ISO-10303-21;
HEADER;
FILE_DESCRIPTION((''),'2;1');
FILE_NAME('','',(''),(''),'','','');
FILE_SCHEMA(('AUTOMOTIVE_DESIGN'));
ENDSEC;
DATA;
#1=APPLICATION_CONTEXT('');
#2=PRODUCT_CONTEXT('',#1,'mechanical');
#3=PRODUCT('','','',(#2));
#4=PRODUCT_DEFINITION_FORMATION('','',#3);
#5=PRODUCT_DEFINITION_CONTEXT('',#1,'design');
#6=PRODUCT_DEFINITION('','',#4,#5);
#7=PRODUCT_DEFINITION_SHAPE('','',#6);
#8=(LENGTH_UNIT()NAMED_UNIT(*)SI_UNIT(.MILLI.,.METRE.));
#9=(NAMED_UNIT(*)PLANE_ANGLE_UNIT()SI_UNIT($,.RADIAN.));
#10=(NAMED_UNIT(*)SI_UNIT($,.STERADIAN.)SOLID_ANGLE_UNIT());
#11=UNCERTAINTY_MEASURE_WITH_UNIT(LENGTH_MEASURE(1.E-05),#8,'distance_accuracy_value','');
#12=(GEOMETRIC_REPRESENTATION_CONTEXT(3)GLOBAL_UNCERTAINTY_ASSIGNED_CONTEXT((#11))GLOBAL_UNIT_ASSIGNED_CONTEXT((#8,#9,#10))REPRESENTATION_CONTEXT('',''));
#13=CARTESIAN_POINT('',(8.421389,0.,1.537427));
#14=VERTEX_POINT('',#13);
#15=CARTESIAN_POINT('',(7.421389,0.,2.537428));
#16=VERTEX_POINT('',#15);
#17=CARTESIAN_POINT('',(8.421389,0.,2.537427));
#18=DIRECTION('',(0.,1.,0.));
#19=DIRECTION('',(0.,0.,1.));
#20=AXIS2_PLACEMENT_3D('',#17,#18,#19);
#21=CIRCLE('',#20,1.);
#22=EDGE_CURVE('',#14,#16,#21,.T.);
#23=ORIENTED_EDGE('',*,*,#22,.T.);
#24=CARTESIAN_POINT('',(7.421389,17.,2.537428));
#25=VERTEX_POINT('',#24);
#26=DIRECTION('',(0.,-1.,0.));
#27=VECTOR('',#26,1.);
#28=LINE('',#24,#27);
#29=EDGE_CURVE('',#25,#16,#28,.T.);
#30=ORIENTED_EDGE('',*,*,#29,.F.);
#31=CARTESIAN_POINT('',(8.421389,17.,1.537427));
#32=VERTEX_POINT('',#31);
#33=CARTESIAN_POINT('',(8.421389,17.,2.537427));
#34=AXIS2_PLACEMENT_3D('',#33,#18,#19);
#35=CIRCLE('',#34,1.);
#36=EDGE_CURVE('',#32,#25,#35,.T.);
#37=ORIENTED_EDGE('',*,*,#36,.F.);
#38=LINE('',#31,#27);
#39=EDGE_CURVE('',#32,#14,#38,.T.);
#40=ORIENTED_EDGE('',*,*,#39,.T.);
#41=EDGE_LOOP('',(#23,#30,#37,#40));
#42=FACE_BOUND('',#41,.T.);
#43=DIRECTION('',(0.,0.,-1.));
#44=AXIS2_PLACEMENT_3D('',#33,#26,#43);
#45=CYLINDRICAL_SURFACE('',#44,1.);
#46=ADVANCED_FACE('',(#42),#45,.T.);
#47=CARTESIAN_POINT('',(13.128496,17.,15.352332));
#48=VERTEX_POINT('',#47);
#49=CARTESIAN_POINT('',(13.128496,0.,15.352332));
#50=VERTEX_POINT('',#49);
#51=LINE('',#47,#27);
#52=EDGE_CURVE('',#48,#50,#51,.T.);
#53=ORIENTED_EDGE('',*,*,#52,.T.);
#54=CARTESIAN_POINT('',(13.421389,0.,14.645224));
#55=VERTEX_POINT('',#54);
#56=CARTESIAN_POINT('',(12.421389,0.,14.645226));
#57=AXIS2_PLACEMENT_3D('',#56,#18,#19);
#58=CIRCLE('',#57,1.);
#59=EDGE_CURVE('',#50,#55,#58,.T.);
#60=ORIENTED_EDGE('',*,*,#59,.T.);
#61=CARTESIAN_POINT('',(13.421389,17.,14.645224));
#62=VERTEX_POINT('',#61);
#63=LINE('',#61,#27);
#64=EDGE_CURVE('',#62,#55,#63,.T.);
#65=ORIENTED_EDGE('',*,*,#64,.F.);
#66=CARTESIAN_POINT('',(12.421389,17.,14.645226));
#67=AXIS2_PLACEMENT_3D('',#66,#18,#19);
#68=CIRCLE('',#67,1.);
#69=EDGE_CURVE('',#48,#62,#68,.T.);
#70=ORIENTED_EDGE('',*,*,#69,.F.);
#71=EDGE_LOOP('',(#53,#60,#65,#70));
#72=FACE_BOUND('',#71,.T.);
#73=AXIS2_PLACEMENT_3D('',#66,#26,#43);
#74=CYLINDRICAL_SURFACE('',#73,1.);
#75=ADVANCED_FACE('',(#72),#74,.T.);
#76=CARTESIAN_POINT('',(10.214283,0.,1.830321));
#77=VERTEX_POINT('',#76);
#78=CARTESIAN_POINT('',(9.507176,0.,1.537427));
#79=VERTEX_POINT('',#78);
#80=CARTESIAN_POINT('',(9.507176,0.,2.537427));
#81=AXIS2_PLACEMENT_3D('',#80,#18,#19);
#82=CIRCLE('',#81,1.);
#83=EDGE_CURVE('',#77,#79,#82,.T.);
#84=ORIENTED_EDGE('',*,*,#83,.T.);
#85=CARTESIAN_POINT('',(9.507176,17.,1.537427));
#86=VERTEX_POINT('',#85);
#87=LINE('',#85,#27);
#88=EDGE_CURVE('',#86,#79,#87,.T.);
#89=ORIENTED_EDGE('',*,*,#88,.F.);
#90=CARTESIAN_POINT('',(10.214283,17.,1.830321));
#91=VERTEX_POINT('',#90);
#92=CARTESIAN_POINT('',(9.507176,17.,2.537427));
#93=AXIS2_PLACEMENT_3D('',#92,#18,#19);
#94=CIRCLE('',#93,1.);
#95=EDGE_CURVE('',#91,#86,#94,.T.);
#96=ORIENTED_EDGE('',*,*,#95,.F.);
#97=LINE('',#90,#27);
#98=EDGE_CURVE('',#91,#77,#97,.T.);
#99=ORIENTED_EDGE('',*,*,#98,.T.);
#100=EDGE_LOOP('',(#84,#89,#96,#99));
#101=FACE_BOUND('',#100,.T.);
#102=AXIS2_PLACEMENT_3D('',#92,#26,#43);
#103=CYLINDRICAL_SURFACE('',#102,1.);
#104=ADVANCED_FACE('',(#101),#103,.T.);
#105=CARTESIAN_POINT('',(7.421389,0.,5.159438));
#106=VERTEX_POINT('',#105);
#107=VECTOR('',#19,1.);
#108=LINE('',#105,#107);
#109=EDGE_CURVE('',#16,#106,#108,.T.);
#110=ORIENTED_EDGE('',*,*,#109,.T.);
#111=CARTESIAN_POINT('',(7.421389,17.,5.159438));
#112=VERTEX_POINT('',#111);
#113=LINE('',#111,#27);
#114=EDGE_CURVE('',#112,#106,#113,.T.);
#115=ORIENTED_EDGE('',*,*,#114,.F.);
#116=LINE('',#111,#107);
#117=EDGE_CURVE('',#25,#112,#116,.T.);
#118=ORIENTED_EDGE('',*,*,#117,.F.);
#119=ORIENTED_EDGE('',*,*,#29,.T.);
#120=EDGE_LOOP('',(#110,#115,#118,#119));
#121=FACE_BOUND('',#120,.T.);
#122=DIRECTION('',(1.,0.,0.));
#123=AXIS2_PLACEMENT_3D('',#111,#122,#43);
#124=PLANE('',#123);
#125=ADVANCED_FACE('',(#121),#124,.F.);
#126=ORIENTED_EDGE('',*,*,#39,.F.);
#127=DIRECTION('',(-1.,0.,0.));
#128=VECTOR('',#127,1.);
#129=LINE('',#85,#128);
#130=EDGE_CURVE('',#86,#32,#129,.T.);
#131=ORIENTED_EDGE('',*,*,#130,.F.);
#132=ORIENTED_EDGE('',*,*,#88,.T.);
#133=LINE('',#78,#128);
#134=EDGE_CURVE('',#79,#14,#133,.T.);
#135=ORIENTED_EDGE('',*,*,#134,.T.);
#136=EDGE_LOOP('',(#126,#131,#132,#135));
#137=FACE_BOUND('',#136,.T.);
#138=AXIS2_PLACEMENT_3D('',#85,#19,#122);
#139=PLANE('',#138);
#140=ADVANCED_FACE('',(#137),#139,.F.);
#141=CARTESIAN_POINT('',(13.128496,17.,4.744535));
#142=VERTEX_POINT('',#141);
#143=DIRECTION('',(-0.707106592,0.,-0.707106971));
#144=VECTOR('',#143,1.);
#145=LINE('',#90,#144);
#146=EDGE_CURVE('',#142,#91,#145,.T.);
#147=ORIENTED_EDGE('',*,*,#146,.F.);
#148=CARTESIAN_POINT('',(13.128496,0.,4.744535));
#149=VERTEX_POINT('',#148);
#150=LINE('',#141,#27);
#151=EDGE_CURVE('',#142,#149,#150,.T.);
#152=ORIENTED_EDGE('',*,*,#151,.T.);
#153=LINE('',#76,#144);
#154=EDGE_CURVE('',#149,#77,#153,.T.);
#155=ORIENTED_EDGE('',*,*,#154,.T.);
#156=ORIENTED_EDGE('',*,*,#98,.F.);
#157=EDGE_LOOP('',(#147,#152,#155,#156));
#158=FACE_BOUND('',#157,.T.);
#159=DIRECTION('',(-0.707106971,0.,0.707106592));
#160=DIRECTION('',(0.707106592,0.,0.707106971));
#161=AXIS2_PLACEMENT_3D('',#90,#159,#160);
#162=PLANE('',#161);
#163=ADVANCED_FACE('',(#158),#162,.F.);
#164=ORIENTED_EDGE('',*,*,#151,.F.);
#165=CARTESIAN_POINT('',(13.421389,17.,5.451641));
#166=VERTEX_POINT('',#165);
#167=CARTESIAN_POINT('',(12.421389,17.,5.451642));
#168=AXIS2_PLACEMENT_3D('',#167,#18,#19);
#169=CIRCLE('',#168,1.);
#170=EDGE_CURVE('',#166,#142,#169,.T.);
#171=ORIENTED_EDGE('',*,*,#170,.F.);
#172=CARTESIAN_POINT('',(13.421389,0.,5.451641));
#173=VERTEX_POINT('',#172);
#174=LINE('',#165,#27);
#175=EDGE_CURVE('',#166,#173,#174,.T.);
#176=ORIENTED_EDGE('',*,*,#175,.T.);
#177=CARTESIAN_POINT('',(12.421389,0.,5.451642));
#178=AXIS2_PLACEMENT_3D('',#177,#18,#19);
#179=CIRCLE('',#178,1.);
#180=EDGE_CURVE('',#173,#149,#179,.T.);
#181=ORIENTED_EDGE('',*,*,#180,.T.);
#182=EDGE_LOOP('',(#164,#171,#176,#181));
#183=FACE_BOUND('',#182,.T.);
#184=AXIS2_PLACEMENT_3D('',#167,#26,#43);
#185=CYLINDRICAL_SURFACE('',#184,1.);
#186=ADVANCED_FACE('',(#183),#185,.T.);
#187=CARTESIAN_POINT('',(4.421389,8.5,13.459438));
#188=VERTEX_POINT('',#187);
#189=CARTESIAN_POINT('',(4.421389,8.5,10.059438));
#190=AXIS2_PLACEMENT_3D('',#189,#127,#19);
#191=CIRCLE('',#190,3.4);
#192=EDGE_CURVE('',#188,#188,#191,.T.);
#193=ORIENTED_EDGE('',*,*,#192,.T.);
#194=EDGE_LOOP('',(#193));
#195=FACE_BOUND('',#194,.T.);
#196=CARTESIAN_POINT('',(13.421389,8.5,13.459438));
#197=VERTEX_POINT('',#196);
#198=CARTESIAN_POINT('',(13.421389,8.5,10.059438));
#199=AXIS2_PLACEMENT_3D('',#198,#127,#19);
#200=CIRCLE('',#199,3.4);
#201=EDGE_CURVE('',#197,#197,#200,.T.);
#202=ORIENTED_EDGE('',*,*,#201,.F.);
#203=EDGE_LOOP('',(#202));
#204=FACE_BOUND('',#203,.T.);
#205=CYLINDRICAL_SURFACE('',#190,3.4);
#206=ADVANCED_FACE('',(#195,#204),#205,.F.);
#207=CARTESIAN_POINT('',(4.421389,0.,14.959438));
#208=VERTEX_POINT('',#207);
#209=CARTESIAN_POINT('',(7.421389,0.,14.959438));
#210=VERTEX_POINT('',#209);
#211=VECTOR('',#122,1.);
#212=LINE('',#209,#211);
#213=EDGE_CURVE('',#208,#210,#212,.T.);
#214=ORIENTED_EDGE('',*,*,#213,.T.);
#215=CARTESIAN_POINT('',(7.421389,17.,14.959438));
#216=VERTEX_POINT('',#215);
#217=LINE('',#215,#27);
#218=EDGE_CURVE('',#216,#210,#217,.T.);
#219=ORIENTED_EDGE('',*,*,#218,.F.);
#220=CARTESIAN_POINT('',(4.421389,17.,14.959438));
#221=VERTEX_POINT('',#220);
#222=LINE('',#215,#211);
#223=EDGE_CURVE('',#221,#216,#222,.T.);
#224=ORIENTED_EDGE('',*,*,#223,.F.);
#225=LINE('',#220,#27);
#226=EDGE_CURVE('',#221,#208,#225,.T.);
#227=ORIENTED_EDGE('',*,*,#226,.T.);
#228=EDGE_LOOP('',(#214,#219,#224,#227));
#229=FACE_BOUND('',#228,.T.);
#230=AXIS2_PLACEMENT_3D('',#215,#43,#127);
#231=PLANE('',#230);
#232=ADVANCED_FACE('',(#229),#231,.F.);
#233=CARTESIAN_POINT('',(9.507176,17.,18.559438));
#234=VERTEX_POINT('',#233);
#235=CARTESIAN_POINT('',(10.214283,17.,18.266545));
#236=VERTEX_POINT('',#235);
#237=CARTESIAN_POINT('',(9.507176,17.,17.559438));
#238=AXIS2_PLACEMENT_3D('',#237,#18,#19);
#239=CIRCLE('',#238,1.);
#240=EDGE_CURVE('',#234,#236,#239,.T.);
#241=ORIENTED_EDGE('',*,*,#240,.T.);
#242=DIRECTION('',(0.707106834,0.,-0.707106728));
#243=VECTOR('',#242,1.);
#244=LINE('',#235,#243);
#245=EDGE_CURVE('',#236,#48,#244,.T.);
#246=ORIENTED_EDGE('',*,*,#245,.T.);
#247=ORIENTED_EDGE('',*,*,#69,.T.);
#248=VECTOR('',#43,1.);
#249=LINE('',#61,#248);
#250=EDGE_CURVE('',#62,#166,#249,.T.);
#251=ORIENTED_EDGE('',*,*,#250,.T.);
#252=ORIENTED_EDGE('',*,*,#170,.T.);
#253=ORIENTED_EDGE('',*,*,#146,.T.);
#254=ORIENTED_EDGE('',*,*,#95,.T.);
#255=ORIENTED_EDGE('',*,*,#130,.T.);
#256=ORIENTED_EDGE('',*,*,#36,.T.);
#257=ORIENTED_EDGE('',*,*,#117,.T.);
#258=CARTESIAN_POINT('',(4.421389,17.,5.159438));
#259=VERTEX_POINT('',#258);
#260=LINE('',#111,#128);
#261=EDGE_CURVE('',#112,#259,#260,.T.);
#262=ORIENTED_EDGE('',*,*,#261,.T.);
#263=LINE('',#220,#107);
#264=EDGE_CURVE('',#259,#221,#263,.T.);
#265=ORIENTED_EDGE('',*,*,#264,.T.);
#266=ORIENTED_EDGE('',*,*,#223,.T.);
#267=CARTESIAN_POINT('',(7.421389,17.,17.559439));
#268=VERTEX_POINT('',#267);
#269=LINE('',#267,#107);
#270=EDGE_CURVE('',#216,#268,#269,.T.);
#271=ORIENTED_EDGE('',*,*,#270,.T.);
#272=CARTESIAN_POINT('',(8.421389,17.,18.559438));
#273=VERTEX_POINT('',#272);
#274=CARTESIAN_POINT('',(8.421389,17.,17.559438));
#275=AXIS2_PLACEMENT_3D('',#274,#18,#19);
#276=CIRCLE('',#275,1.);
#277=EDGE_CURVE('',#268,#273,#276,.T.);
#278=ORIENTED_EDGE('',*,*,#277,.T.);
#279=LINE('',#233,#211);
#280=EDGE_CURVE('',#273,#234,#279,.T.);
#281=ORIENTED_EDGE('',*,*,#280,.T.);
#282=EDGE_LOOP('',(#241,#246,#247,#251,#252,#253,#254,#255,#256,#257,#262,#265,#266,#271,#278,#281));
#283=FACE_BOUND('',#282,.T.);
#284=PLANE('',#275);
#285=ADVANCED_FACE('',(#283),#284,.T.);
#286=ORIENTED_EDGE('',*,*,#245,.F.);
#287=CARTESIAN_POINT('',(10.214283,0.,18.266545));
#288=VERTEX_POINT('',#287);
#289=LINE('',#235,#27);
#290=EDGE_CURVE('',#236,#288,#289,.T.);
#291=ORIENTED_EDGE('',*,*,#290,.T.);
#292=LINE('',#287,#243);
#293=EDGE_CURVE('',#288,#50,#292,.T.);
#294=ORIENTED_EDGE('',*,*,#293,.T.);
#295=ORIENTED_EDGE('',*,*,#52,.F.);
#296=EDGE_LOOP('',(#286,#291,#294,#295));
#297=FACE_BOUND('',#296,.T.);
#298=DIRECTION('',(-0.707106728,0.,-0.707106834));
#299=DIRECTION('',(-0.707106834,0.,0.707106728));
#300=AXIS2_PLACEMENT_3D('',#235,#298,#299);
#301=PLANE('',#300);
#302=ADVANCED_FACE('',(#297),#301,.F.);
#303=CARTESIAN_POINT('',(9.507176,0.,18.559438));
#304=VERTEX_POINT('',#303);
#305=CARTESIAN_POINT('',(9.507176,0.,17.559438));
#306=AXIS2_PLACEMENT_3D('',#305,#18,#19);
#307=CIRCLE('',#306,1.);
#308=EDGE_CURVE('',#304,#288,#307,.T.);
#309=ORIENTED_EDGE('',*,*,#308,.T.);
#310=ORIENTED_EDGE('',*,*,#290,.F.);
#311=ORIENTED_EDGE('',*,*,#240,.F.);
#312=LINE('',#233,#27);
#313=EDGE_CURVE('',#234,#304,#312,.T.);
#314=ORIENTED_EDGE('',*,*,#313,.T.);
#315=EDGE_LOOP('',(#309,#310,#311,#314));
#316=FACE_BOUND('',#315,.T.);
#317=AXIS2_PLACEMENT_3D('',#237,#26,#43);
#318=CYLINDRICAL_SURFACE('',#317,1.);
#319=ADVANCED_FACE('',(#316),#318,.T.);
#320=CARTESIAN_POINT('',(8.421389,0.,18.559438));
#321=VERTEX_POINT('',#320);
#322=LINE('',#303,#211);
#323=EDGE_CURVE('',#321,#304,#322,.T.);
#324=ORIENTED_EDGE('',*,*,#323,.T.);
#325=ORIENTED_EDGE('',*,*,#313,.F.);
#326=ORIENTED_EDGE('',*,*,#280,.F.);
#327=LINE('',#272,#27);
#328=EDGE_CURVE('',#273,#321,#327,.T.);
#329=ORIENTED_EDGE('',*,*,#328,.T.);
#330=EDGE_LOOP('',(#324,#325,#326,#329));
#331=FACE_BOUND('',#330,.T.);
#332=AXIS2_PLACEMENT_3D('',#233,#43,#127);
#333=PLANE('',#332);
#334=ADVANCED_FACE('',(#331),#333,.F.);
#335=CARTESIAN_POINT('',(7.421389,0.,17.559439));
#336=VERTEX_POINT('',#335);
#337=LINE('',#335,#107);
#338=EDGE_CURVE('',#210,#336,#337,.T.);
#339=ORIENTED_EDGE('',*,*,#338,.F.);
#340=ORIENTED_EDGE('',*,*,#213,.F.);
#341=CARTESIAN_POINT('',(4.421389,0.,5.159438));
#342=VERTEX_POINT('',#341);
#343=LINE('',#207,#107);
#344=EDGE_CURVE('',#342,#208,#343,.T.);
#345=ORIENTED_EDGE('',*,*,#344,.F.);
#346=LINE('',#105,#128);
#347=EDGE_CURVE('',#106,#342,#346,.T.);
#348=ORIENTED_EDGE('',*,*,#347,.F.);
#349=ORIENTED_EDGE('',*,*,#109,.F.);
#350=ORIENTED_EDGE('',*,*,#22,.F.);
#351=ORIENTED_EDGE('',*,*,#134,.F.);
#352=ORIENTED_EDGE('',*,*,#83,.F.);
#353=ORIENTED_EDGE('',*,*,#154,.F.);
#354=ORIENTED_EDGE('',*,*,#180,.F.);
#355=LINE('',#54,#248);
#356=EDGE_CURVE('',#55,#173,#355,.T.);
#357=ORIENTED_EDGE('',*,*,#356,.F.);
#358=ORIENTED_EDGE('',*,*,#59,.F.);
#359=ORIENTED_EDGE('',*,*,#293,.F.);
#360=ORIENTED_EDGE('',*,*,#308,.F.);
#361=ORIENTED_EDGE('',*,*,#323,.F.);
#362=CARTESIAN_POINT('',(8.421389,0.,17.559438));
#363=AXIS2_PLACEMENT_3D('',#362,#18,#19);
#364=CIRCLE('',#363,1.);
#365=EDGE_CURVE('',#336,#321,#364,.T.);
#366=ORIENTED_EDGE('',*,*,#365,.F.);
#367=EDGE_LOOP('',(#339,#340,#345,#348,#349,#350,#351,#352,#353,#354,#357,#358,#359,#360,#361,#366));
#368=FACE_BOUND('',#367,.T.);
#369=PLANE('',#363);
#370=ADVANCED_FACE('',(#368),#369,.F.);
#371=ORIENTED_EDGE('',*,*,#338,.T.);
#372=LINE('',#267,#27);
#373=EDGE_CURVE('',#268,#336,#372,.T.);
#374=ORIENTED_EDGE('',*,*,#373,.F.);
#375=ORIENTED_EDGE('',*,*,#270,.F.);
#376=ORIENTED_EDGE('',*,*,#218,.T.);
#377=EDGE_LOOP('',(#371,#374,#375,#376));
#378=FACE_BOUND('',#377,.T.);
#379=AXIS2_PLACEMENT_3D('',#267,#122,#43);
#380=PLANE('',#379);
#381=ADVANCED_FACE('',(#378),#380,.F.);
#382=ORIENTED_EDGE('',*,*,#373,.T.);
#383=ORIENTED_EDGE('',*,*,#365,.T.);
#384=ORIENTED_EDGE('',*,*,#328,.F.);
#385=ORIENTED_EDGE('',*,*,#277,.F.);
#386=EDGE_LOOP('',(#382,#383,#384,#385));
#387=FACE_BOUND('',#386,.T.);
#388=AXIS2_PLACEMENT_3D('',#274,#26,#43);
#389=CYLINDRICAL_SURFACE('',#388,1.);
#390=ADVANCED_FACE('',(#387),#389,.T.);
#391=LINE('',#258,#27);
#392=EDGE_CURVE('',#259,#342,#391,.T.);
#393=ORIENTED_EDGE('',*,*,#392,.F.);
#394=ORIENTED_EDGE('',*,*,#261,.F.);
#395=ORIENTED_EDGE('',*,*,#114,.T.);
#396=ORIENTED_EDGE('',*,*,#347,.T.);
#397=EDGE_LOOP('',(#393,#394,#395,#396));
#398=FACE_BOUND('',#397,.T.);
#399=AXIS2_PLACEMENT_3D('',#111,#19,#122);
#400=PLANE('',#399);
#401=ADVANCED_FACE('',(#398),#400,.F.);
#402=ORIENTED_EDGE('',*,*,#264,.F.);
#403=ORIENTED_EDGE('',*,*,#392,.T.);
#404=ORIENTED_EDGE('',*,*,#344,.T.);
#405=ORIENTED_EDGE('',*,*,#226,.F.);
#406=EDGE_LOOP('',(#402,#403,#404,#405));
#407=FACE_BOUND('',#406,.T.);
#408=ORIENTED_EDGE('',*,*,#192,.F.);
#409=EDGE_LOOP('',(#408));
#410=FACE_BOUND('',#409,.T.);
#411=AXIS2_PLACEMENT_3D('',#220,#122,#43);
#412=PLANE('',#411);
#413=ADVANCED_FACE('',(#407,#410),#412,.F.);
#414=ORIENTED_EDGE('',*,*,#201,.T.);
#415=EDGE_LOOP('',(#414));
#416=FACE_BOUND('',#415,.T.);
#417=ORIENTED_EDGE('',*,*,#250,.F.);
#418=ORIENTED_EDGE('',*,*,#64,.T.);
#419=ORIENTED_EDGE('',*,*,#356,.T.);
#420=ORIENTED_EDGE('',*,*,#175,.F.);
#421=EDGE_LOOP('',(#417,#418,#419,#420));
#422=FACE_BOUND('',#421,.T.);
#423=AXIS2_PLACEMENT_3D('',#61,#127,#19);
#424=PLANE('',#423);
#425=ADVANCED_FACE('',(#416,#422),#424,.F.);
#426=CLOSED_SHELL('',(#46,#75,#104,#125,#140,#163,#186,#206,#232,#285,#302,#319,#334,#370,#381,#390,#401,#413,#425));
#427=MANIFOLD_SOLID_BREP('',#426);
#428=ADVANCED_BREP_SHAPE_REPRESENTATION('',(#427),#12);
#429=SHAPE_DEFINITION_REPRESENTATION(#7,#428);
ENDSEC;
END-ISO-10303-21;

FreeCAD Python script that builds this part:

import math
import FreeCAD as App
import Part
import Sketcher
from FreeCAD import Vector

doc = App.newDocument("Part")
body = doc.addObject("PartDesign::Body", "Body")

# Sketch on XZ plane
sketch1 = body.newObject("Sketcher::SketchObject", "Sketch")
sketch1.AttachmentSupport = (doc.getObject("XZ_Plane"), [""])
sketch1.MapMode = "FlatFace"
sketch1.addGeometry(Part.LineSegment(Vector(10.2, 18.3, 0), Vector(13.1, 15.4, 0)), False)
sketch1.addGeometry(Part.ArcOfCircle(Part.Circle(Vector(12.4, 14.6, 0), Vector(0, 0, 1), 1), math.radians(0), math.radians(45)), False)
sketch1.addGeometry(Part.LineSegment(Vector(13.4, 14.6, 0), Vector(13.4, 5.5, 0)), False)
sketch1.addGeometry(Part.ArcOfCircle(Part.Circle(Vector(12.4, 5.5, 0), Vector(0, 0, 1), 1), math.radians(-45), math.radians(0)), False)
sketch1.addGeometry(Part.LineSegment(Vector(13.1, 4.7, 0), Vector(10.2, 1.8, 0)), False)
sketch1.addGeometry(Part.ArcOfCircle(Part.Circle(Vector(9.5, 2.5, 0), Vector(0, 0, 1), 1), math.radians(-90), math.radians(-45)), False)
sketch1.addGeometry(Part.LineSegment(Vector(9.5, 1.5, 0), Vector(8.4, 1.5, 0)), False)
sketch1.addGeometry(Part.ArcOfCircle(Part.Circle(Vector(8.4, 2.5, 0), Vector(0, 0, 1), 1), math.radians(180), math.radians(270)), False)
sketch1.addGeometry(Part.LineSegment(Vector(7.4, 2.5, 0), Vector(7.4, 5.2, 0)), False)
sketch1.addGeometry(Part.LineSegment(Vector(7.4, 5.2, 0), Vector(4.4, 5.2, 0)), False)
sketch1.addGeometry(Part.LineSegment(Vector(4.4, 5.2, 0), Vector(4.4, 15, 0)), False)
sketch1.addGeometry(Part.LineSegment(Vector(4.4, 15, 0), Vector(7.4, 15, 0)), False)
sketch1.addGeometry(Part.LineSegment(Vector(7.4, 15, 0), Vector(7.4, 17.6, 0)), False)
sketch1.addGeometry(Part.ArcOfCircle(Part.Circle(Vector(8.4, 17.6, 0), Vector(0, 0, 1), 1), math.radians(90), math.radians(180)), False)
sketch1.addGeometry(Part.LineSegment(Vector(8.4, 18.6, 0), Vector(9.5, 18.6, 0)), False)
sketch1.addGeometry(Part.ArcOfCircle(Part.Circle(Vector(9.5, 17.6, 0), Vector(0, 0, 1), 1), math.radians(45), math.radians(90)), False)
sketch1.addConstraint(Sketcher.Constraint("Tangent", 0, 2, 1, 2))
sketch1.addConstraint(Sketcher.Constraint("Tangent", 1, 1, 2, 1))
sketch1.addConstraint(Sketcher.Constraint("Tangent", 2, 2, 3, 2))
sketch1.addConstraint(Sketcher.Constraint("Tangent", 3, 1, 4, 1))
sketch1.addConstraint(Sketcher.Constraint("Tangent", 4, 2, 5, 2))
sketch1.addConstraint(Sketcher.Constraint("Tangent", 5, 1, 6, 1))
sketch1.addConstraint(Sketcher.Constraint("Tangent", 6, 2, 7, 2))
sketch1.addConstraint(Sketcher.Constraint("Tangent", 7, 1, 8, 1))
sketch1.addConstraint(Sketcher.Constraint("Coincident", 8, 2, 9, 1))
sketch1.addConstraint(Sketcher.Constraint("Coincident", 9, 2, 10, 1))
sketch1.addConstraint(Sketcher.Constraint("Coincident", 10, 2, 11, 1))
sketch1.addConstraint(Sketcher.Constraint("Coincident", 11, 2, 12, 1))
sketch1.addConstraint(Sketcher.Constraint("Tangent", 12, 2, 13, 2))
sketch1.addConstraint(Sketcher.Constraint("Tangent", 13, 1, 14, 1))
sketch1.addConstraint(Sketcher.Constraint("Tangent", 14, 2, 15, 2))
sketch1.addConstraint(Sketcher.Constraint("Tangent", 15, 1, 0, 1))
sketch1.addConstraint(Sketcher.Constraint("Vertical", 2))
sketch1.addConstraint(Sketcher.Constraint("Horizontal", 6))
sketch1.addConstraint(Sketcher.Constraint("Vertical", 8))
sketch1.addConstraint(Sketcher.Constraint("Horizontal", 9))
sketch1.addConstraint(Sketcher.Constraint("Vertical", 10))
sketch1.addConstraint(Sketcher.Constraint("Horizontal", 11))
sketch1.addConstraint(Sketcher.Constraint("Vertical", 12))
sketch1.addConstraint(Sketcher.Constraint("Horizontal", 14))
sketch1.addConstraint(Sketcher.Constraint("Equal", 1, 3))
sketch1.addConstraint(Sketcher.Constraint("Equal", 3, 5))
sketch1.addConstraint(Sketcher.Constraint("Equal", 5, 7))
sketch1.addConstraint(Sketcher.Constraint("Equal", 7, 13))
sketch1.addConstraint(Sketcher.Constraint("Equal", 13, 15))
sketch1.addConstraint(Sketcher.Constraint("Perpendicular", 0, 4))
sketch1.addConstraint(Sketcher.Constraint("Vertical", 7, 3, 13, 3))
sketch1.addConstraint(Sketcher.Constraint("Vertical", 5, 3, 15, 3))
sketch1.addConstraint(Sketcher.Constraint("Vertical", 0, 2, 3, 1))
sketch1.addConstraint(Sketcher.Constraint("Radius", 1, 1.0))
sketch1.addConstraint(Sketcher.Constraint("DistanceX", 9, 2, 9, 1, 3.0))
sketch1.addConstraint(Sketcher.Constraint("DistanceY", 10, 1, 10, 2, 9.8))
sketch1.addConstraint(Sketcher.Constraint("DistanceY", 12, 1, 12, 2, 2.6))
sketch1.addConstraint(Sketcher.Constraint("DistanceX", 7, 3, 3, 3, 4.0))
sketch1.addConstraint(Sketcher.Constraint("DistanceY", 8, 1, 8, 2, 2.622011))
sketch1.addConstraint(Sketcher.Constraint("DistanceY", 5, 3, 1, 3, 12.107798))
sketch1.addConstraint(Sketcher.Constraint("DistanceX", -1, 1, 1, 3, 12.421389))
sketch1.addConstraint(Sketcher.Constraint("DistanceY", -1, 1, 13, 3, 17.559438))
pad1 = body.newObject("PartDesign::Pad", "Pad")
pad1.Profile = sketch1
pad1.Length = 17
pad1.Reversed = True

# Sketch on YZ plane
sketch2 = body.newObject("Sketcher::SketchObject", "Sketch001")
sketch2.AttachmentSupport = (doc.getObject("YZ_Plane"), [""])
sketch2.MapMode = "FlatFace"
sketch2.AttachmentOffset = App.Placement(Vector(0, 0, 4.421389), App.Rotation())
sketch2.addGeometry(Part.Circle(Vector(8.5, 10.1, 0), Vector(0, 0, 1), 3.4), False)
sketch2.addConstraint(Sketcher.Constraint("Diameter", 0, 6.8))
sketch2.addConstraint(Sketcher.Constraint("DistanceX", -1, 1, 0, 3, 8.5))
sketch2.addConstraint(Sketcher.Constraint("DistanceY", -1, 1, 0, 3, 10.059438))
doc.recompute()
hole = body.newObject("PartDesign::Hole", "Hole")
hole.Profile = sketch2
hole.ThreadType = "None"
hole.Diameter = 6.8
hole.DepthType = "ThroughAll"
hole.Reversed = True

doc.recompute()
